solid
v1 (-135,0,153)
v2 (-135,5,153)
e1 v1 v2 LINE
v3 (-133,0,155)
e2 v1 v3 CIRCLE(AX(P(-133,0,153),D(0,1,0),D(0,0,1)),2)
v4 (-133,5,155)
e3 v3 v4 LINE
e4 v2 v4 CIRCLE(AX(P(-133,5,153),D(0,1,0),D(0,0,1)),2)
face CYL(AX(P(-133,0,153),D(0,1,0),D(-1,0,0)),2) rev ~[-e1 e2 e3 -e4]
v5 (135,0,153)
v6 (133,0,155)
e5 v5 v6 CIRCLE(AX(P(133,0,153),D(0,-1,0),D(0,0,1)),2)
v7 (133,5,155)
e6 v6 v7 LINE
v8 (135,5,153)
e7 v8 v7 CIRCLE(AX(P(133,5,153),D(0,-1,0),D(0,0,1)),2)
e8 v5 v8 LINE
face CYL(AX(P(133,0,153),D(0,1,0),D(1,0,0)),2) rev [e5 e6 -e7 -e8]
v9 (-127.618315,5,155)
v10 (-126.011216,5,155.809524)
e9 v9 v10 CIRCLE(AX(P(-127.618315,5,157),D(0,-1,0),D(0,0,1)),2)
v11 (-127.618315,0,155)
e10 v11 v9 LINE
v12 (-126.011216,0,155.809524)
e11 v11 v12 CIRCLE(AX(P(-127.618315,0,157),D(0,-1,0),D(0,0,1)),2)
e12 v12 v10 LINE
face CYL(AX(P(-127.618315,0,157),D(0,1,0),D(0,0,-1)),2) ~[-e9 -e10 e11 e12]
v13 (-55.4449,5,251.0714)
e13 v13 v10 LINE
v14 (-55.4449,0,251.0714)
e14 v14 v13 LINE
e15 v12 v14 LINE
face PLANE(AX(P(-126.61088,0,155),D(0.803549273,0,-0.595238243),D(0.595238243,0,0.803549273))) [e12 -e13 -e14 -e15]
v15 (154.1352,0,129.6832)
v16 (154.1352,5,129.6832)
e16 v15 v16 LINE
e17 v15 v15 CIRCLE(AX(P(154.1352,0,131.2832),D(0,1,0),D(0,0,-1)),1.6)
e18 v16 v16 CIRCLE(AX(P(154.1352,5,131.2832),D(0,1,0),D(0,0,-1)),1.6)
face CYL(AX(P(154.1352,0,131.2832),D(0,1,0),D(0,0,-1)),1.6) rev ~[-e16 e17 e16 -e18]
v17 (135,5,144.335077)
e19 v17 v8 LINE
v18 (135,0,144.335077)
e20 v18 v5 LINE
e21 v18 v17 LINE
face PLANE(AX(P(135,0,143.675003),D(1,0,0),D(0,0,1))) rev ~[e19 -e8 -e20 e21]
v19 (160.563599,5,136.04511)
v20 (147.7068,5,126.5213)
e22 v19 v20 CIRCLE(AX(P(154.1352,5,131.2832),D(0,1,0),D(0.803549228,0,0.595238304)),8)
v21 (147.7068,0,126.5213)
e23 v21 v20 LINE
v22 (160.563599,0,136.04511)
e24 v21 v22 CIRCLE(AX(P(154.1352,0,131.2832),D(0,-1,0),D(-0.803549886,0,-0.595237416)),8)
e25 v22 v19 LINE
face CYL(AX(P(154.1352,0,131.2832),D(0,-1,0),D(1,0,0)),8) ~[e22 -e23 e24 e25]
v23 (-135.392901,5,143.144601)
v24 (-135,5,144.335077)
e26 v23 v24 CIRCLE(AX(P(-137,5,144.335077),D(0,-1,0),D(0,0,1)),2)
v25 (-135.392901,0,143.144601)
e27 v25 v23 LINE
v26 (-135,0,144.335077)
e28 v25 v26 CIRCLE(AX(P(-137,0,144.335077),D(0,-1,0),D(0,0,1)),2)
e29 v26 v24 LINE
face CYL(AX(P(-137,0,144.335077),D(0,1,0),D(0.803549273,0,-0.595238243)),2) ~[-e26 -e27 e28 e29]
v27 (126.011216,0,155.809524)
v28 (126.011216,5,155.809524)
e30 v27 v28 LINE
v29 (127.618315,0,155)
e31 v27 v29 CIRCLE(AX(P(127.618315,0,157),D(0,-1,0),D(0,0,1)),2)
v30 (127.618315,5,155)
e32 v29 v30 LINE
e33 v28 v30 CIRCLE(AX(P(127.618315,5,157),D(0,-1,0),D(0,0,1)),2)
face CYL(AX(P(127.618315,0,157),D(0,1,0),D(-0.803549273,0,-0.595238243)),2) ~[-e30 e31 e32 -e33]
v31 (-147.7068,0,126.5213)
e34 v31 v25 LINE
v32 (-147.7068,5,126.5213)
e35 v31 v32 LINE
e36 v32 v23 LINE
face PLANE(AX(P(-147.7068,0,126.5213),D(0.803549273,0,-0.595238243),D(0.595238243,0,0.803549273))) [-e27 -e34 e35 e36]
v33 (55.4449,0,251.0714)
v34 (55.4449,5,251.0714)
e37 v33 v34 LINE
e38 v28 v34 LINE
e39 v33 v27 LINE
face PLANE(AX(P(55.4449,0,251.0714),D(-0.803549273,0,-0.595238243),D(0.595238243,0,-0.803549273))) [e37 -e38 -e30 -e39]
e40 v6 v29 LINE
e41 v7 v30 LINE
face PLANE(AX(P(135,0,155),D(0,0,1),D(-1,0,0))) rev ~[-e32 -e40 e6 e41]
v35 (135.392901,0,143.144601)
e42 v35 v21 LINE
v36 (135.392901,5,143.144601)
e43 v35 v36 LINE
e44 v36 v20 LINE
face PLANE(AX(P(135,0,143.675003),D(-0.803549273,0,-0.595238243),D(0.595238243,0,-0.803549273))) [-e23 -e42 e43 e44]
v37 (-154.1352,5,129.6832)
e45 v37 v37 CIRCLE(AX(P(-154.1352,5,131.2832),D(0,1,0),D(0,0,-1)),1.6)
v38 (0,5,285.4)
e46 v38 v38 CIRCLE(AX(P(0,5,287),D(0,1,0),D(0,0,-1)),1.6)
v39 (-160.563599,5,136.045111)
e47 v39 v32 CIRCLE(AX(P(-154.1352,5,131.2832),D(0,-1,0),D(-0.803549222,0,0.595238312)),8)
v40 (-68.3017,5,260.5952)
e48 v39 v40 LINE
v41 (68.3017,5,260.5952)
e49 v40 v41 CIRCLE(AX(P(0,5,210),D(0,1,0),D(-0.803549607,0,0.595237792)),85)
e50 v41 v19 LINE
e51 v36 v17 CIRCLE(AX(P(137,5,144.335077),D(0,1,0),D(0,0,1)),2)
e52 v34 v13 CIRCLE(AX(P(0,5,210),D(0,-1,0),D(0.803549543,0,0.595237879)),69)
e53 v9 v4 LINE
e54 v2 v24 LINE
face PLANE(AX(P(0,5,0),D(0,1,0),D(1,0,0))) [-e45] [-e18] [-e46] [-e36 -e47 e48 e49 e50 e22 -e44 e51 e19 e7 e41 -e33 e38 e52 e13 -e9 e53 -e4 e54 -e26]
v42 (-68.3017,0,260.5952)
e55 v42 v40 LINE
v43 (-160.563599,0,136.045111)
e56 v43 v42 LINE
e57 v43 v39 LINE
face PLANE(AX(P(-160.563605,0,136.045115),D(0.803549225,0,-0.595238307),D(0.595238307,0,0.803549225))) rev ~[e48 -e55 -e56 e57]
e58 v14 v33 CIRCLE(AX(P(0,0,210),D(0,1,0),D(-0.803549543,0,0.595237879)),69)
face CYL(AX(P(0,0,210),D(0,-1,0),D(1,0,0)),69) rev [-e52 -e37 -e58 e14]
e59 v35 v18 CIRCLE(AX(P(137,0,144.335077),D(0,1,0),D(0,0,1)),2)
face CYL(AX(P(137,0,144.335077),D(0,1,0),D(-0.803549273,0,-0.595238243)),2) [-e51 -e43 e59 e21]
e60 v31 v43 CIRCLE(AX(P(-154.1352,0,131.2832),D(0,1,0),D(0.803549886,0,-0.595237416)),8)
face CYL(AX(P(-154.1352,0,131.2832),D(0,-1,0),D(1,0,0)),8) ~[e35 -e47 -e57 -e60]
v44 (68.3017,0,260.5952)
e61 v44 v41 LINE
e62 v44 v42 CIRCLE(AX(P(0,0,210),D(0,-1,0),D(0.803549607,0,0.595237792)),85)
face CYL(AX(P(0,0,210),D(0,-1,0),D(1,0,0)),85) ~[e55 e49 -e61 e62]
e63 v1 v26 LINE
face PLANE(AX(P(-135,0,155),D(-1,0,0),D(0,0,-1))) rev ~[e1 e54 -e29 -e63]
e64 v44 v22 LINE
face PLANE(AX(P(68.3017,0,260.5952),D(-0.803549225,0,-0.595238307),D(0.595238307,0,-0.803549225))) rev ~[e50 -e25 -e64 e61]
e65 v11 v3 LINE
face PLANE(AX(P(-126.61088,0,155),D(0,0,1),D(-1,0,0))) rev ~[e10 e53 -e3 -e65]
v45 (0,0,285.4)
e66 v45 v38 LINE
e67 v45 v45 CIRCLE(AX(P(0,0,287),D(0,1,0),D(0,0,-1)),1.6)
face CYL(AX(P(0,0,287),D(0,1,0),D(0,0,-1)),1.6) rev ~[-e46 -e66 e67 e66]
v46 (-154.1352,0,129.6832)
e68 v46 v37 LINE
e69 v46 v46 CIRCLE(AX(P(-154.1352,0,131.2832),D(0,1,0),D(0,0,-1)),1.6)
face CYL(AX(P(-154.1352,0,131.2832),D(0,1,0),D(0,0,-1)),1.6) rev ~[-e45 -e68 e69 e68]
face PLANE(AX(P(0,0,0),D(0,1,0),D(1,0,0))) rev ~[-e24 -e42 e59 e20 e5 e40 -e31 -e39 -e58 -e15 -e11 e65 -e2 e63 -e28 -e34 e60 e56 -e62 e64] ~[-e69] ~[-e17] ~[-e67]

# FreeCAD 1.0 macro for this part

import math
import FreeCAD as App
import Part
import Sketcher
from FreeCAD import Vector
Q = App.Units.Quantity


def edges_at(feature, points):
    """Names of the edges that pass closest to the given points."""
    edges = feature.Shape.Edges
    near = lambda p: min(range(len(edges)), key=lambda i: edges[i].distToShape(Part.Vertex(*p))[0])
    return sorted({f"Edge{near(p) + 1}" for p in points})

doc = App.newDocument("Part")
body = doc.addObject("PartDesign::Body", "Body")

# Sketch on XZ plane
sketch1 = body.newObject("Sketcher::SketchObject", "Sketch")
sketch1.AttachmentSupport = (doc.getObject("XZ_Plane"), [""])
sketch1.MapMode = "FlatFace"
sketch1.addGeometry(Part.ArcOfCircle(Part.Circle(Vector(-154, 131, 0), Vector(0, 0, 1), 8), math.radians(143), math.radians(323)), False)
sketch1.addGeometry(Part.LineSegment(Vector(-161, 136, 0), Vector(-68, 261, 0)), False)
sketch1.addGeometry(Part.ArcOfCircle(Part.Circle(Vector(0, 210, 0), Vector(0, 0, 1), 85), math.radians(37), math.radians(143)), False)
sketch1.addGeometry(Part.LineSegment(Vector(68, 261, 0), Vector(161, 136, 0)), False)
sketch1.addGeometry(Part.ArcOfCircle(Part.Circle(Vector(154, 131, 0), Vector(0, 0, 1), 8), math.radians(-143), math.radians(37)), False)
sketch1.addGeometry(Part.LineSegment(Vector(148, 127, 0), Vector(135, 144, 0)), False)
sketch1.addGeometry(Part.LineSegment(Vector(135, 144, 0), Vector(135, 155, 0)), False)
sketch1.addGeometry(Part.LineSegment(Vector(135, 155, 0), Vector(127, 155, 0)), False)
sketch1.addGeometry(Part.LineSegment(Vector(127, 155, 0), Vector(55, 251, 0)), False)
sketch1.addGeometry(Part.ArcOfCircle(Part.Circle(Vector(0, 210, 0), Vector(0, 0, 1), 69), math.radians(37), math.radians(143)), False)
sketch1.addGeometry(Part.LineSegment(Vector(-55, 251, 0), Vector(-127, 155, 0)), False)
sketch1.addGeometry(Part.LineSegment(Vector(-127, 155, 0), Vector(-135, 155, 0)), False)
sketch1.addGeometry(Part.LineSegment(Vector(-135, 155, 0), Vector(-135, 144, 0)), False)
sketch1.addGeometry(Part.LineSegment(Vector(-135, 144, 0), Vector(-148, 127, 0)), False)
sketch1.addConstraint(Sketcher.Constraint("Tangent", 0, 1, 1, 1))
sketch1.addConstraint(Sketcher.Constraint("Tangent", 1, 2, 2, 2))
sketch1.addConstraint(Sketcher.Constraint("Tangent", 2, 1, 3, 1))
sketch1.addConstraint(Sketcher.Constraint("Tangent", 3, 2, 4, 2))
sketch1.addConstraint(Sketcher.Constraint("Tangent", 4, 1, 5, 1))
sketch1.addConstraint(Sketcher.Constraint("Coincident", 5, 2, 6, 1))
sketch1.addConstraint(Sketcher.Constraint("Coincident", 6, 2, 7, 1))
sketch1.addConstraint(Sketcher.Constraint("Coincident", 7, 2, 8, 1))
sketch1.addConstraint(Sketcher.Constraint("Tangent", 8, 2, 9, 1))
sketch1.addConstraint(Sketcher.Constraint("Tangent", 9, 2, 10, 1))
sketch1.addConstraint(Sketcher.Constraint("Coincident", 10, 2, 11, 1))
sketch1.addConstraint(Sketcher.Constraint("Coincident", 11, 2, 12, 1))
sketch1.addConstraint(Sketcher.Constraint("Coincident", 12, 2, 13, 1))
sketch1.addConstraint(Sketcher.Constraint("Tangent", 13, 2, 0, 2))
sketch1.addConstraint(Sketcher.Constraint("Vertical", 6))
sketch1.addConstraint(Sketcher.Constraint("Horizontal", 7))
sketch1.addConstraint(Sketcher.Constraint("Horizontal", 11))
sketch1.addConstraint(Sketcher.Constraint("Vertical", 12))
sketch1.addConstraint(Sketcher.Constraint("Coincident", 9, 3, 2, 3))
sketch1.addConstraint(Sketcher.Constraint("Equal", 0, 4))
sketch1.addConstraint(Sketcher.Constraint("Symmetric", 0, 3, 4, 3, -2))
sketch1.addConstraint(Sketcher.Constraint("Symmetric", 8, 2, 9, 2, -2))
sketch1.addConstraint(Sketcher.Constraint("Symmetric", 6, 2, 11, 2, -2))
sketch1.addConstraint(Sketcher.Constraint("Parallel", 3, 5))
sketch1.addConstraint(Sketcher.Constraint("Parallel", 5, 8))
sketch1.addConstraint(Sketcher.Constraint("Parallel", 10, 13))
sketch1.addConstraint(Sketcher.Constraint("Radius", 0, 8.0))
sketch1.addConstraint(Sketcher.Constraint("Radius", 2, 85.0))
sketch1.addConstraint(Sketcher.Constraint("Distance", 1, 155.0))
sketch1.addConstraint(Sketcher.Constraint("DistanceY", -1, 1, 2, 3, 210.0))
sketch1.addConstraint(Sketcher.Constraint("DistanceY", -1, 1, 6, 2, 155.0))
sketch1.addConstraint(Sketcher.Constraint("Radius", 9, 69.0))
sketch1.addConstraint(Sketcher.Constraint("DistanceX", -1, 1, 5, 2, 135.0))
sketch1.addConstraint(Sketcher.Constraint("Angle", 1, Q("53.4704 deg")))
pad1 = body.newObject("PartDesign::Pad", "Pad")
pad1.Profile = sketch1
pad1.Length = 5
pad1.Reversed = True

# Sketch on XZ plane
sketch2 = body.newObject("Sketcher::SketchObject", "Sketch001")
sketch2.AttachmentSupport = (doc.getObject("XZ_Plane"), [""])
sketch2.MapMode = "FlatFace"
sketch2.addGeometry(Part.Circle(Vector(0, 287, 0), Vector(0, 0, 1), 1.6), False)
sketch2.addGeometry(Part.Circle(Vector(-154.1, 131.3, 0), Vector(0, 0, 1), 1.6), False)
sketch2.addGeometry(Part.Circle(Vector(154.1, 131.3, 0), Vector(0, 0, 1), 1.6), False)
sketch2.addConstraint(Sketcher.Constraint("Equal", 0, 1))
sketch2.addConstraint(Sketcher.Constraint("Equal", 1, 2))
sketch2.addConstraint(Sketcher.Constraint("Symmetric", 1, 3, 2, 3, -2))
sketch2.addConstraint(Sketcher.Constraint("PointOnObject", 0, 3, -2))
sketch2.addConstraint(Sketcher.Constraint("Diameter", 0, 3.2))
sketch2.addConstraint(Sketcher.Constraint("DistanceY", -1, 1, 0, 3, 287.0))
sketch2.addConstraint(Sketcher.Constraint("DistanceX", 1, 3, -1, 1, 154.1352))
sketch2.addConstraint(Sketcher.Constraint("DistanceY", -1, 1, 1, 3, 131.2832))
doc.recompute()
hole = body.newObject("PartDesign::Hole", "Hole")
hole.Profile = sketch2
hole.ThreadType = "None"
hole.Diameter = 3.2
hole.DepthType = "ThroughAll"
doc.recompute()

fillet = body.newObject("PartDesign::Fillet", "Fillet")
fillet.Base = (hole, edges_at(hole, [
    (135, 2.5, 155),
    (-135, 2.5, 155),
    (126.611, 2.5, 155),
    (135, 2.5, 143.675),
    (-135, 2.5, 143.675),
    (-126.611, 2.5, 155),
]))
fillet.Radius = 2

doc.recompute()
